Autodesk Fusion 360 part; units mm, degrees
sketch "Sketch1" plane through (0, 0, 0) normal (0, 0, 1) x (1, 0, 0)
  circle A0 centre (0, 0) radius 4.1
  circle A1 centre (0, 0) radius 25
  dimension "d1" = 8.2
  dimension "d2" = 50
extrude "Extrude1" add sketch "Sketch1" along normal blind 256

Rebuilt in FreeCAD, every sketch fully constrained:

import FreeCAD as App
import Part
import Sketcher
from FreeCAD import Vector

doc = App.newDocument("Part")
body = doc.addObject("PartDesign::Body", "Body")

sketch1 = doc.addObject("Sketcher::SketchObject", "Sketch")
body.addObject(sketch1)
sketch1.AttachmentSupport = (doc.XY_Plane, [""])
sketch1.MapMode = "FlatFace"
sketch1.addGeometry(Part.Circle(Vector(0, 0, 0), Vector(0, 0, 1), 25), False)
sketch1.addGeometry(Part.Circle(Vector(0, 0, 0), Vector(0, 0, 1), 4.1), False)
sketch1.addConstraint(Sketcher.Constraint("Coincident", 0, 3, -1, 1))
sketch1.addConstraint(Sketcher.Constraint("Coincident", 1, 3, -1, 1))
sketch1.addConstraint(Sketcher.Constraint("Diameter", 0, 50.0))
sketch1.addConstraint(Sketcher.Constraint("Diameter", 1, 8.2))
pad1 = doc.addObject("PartDesign::Pad", "Pad")
body.addObject(pad1)
pad1.Profile = sketch1
pad1.Length = 256

doc.recompute()
